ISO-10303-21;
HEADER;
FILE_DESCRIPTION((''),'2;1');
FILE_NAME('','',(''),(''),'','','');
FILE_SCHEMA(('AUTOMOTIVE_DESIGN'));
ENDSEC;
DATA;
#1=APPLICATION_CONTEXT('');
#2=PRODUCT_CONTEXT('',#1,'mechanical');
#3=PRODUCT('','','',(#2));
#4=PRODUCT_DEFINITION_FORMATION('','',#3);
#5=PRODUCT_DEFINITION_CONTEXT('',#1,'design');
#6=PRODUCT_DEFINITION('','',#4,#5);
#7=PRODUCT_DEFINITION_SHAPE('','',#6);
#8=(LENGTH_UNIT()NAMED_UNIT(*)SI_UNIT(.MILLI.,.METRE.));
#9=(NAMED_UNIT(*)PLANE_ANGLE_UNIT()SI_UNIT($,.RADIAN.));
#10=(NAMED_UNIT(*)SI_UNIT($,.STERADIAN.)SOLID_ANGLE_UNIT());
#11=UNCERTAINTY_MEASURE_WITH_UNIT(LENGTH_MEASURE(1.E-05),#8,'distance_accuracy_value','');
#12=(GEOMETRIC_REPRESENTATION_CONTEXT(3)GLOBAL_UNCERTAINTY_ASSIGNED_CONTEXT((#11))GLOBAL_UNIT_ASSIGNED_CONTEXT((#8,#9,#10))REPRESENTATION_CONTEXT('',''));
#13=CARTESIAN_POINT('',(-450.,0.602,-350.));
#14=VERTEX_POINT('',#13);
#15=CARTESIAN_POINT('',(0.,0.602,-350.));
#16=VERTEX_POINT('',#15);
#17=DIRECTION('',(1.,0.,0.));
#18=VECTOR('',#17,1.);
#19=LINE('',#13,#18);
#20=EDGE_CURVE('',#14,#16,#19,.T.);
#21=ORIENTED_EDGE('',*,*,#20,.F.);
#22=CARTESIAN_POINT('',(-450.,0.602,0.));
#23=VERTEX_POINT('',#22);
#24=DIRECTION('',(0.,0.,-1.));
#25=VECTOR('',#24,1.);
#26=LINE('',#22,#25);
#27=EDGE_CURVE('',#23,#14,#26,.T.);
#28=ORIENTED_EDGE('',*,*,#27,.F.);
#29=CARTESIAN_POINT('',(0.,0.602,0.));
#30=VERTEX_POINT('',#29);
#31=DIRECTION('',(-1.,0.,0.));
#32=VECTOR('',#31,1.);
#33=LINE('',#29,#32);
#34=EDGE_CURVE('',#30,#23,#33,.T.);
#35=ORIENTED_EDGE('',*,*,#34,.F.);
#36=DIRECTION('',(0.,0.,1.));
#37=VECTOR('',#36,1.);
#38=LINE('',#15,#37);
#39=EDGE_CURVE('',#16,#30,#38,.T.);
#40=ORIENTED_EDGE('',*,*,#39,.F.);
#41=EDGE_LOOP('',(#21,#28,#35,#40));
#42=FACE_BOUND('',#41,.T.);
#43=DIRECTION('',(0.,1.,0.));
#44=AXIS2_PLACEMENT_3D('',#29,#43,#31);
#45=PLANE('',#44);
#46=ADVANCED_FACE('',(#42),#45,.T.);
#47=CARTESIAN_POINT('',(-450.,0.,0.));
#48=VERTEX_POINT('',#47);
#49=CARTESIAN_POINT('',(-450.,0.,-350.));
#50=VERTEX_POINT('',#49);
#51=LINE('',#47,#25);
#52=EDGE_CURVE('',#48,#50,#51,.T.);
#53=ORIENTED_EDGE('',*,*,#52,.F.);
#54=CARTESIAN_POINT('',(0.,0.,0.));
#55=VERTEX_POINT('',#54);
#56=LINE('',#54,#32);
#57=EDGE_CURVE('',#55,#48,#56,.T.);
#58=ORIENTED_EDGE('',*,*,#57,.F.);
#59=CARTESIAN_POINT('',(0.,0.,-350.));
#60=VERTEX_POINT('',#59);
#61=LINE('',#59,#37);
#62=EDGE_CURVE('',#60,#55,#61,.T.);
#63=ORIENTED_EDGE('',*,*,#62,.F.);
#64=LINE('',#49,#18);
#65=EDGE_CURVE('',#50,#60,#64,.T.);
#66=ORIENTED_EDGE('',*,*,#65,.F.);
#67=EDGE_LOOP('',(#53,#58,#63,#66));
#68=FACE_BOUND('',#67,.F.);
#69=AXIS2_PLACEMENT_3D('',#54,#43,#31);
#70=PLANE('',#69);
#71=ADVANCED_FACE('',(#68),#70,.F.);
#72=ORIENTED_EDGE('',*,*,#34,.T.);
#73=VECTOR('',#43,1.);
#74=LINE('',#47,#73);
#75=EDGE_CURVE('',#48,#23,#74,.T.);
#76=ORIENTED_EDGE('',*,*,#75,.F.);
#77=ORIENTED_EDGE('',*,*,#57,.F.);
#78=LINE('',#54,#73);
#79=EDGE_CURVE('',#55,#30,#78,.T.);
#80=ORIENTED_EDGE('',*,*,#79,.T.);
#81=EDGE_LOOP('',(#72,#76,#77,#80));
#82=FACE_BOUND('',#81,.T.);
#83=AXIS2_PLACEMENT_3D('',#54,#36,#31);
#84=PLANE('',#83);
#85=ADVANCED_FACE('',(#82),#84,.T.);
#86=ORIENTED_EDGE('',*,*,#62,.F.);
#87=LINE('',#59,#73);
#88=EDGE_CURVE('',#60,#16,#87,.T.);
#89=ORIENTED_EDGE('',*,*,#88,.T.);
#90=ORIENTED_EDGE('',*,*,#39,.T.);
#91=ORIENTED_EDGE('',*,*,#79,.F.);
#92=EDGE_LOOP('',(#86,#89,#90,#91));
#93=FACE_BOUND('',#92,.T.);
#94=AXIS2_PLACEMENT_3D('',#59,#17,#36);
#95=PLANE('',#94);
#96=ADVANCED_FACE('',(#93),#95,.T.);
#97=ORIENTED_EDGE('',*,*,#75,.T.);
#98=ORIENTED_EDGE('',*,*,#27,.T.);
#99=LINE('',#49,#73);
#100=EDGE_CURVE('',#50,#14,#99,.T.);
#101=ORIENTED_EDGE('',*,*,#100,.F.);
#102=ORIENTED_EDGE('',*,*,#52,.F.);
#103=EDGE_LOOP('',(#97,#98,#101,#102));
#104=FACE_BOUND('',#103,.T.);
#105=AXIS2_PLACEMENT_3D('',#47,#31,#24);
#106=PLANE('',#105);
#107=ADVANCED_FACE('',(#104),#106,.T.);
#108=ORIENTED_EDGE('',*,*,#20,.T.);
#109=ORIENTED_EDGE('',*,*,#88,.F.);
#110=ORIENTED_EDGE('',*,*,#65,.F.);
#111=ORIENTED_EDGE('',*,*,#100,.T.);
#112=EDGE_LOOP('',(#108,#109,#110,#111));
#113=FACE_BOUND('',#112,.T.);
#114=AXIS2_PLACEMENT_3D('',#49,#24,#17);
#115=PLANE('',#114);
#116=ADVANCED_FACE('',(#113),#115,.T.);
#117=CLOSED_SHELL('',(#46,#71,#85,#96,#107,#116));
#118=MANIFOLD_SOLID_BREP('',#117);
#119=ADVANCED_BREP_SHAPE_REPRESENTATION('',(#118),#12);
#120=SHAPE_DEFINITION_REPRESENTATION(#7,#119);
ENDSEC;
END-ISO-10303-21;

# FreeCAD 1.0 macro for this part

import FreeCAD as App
import Part
import Sketcher
from FreeCAD import Vector
Q = App.Units.Quantity


def add_polygon(sketch, points):
    """Adds a closed chain of lines whose ends are joined by coincident constraints."""
    first, n = sketch.GeometryCount, len(points)
    for a, b in zip(points, points[1:] + points[:1]):
        sketch.addGeometry(Part.LineSegment(App.Vector(*a, 0), App.Vector(*b, 0)), False)
    for i in range(n):
        sketch.addConstraint(Sketcher.Constraint("Coincident", first + i, 2, first + (i + 1) % n, 1))

doc = App.newDocument("Part")
body = doc.addObject("PartDesign::Body", "Body")

# Sketch on XZ plane
sketch1 = body.newObject("Sketcher::SketchObject", "Sketch")
sketch1.AttachmentSupport = (doc.getObject("XZ_Plane"), [""])
sketch1.MapMode = "FlatFace"
add_polygon(sketch1, [(-450, 0), (0, 0), (0, -350), (-450, -350)])  # lines 0-3
sketch1.addConstraint([
    Sketcher.Constraint("Horizontal", 0),
    Sketcher.Constraint("Vertical", 1),
    Sketcher.Constraint("Horizontal", 2),
    Sketcher.Constraint("Vertical", 3),
    Sketcher.Constraint("Coincident", 0, 2, -1, 1),
    Sketcher.Constraint("DistanceX", 0, 1, 0, 2, Q("450 mm")),
    Sketcher.Constraint("DistanceY", 1, 2, 1, 1, Q("350 mm")),
])
pad1 = body.newObject("PartDesign::Pad", "Pad")
pad1.Profile = sketch1
pad1.Length = 0.602
pad1.Reversed = True

doc.recompute()
